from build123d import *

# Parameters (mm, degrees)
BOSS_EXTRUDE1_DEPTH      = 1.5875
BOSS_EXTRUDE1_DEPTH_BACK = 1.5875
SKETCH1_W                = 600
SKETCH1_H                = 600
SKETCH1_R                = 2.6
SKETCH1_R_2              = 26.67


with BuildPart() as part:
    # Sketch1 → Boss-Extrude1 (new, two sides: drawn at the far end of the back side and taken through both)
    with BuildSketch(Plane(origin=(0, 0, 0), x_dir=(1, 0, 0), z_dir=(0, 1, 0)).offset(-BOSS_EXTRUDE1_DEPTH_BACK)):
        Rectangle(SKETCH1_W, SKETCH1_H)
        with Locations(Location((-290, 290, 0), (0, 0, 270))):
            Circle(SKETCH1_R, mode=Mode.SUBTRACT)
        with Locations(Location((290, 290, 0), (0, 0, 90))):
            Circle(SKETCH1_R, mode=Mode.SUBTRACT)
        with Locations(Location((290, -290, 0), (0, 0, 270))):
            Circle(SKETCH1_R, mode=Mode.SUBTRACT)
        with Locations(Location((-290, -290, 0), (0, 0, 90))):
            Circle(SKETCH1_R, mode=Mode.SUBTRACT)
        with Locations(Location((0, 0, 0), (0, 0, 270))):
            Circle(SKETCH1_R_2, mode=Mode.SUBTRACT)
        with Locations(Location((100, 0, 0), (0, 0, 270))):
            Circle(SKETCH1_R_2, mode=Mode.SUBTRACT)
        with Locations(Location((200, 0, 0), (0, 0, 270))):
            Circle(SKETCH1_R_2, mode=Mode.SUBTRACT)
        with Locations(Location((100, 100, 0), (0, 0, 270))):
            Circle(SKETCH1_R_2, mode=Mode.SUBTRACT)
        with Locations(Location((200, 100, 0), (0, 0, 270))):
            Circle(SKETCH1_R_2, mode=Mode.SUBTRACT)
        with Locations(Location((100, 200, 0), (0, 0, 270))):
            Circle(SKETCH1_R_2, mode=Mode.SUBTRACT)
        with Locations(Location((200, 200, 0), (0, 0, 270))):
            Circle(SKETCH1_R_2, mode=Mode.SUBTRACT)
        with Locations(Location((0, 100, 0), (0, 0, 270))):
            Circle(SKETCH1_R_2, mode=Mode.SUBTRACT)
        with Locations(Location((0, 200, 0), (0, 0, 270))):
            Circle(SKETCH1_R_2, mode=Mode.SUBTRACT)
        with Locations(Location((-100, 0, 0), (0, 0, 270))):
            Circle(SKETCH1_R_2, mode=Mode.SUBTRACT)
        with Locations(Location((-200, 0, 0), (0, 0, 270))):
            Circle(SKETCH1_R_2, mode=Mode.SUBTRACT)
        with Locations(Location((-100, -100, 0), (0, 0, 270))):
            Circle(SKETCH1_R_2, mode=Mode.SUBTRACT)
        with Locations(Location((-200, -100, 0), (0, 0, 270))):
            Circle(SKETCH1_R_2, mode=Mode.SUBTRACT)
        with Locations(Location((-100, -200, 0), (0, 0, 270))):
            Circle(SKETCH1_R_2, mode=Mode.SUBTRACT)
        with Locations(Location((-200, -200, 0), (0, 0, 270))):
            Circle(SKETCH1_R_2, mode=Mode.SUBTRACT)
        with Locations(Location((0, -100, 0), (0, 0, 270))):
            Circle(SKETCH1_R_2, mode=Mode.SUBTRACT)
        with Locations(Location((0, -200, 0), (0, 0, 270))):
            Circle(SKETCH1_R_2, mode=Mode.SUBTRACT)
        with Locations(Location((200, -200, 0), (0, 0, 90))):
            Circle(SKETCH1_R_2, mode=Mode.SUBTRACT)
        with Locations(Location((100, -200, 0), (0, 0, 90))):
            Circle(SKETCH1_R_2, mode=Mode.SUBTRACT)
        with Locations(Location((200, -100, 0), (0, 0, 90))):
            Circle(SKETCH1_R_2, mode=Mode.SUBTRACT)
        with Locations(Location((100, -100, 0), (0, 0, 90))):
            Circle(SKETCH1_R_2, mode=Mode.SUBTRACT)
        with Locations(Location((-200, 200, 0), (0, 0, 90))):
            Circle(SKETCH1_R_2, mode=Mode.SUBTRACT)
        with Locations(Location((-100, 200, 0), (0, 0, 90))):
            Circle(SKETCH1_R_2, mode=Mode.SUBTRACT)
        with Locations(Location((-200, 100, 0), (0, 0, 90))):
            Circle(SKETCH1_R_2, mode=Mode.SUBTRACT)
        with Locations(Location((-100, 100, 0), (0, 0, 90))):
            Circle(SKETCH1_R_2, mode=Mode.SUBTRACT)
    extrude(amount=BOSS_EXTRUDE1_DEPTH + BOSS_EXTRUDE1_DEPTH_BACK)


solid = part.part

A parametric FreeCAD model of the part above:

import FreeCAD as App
import Part
import Sketcher

doc = App.newDocument("Part")
body = doc.addObject("PartDesign::Body", "Body")

sketch1 = body.newObject("Sketcher::SketchObject", "Sketch")
sketch1.AttachmentSupport = (doc.getObject("XZ_Plane"), [""])
sketch1.MapMode = "FlatFace"
sketch1.addGeometry([
    Part.LineSegment(App.Vector(-300, -300, 0), App.Vector(-300, 300, 0)),
    Part.LineSegment(App.Vector(-300, 300, 0), App.Vector(300, 300, 0)),
    Part.LineSegment(App.Vector(300, 300, 0), App.Vector(300, -300, 0)),
    Part.LineSegment(App.Vector(300, -300, 0), App.Vector(-300, -300, 0)),
    Part.Circle(App.Vector(-290, 290, 0), App.Vector(0, 0, 1), 2.6),
    Part.Circle(App.Vector(-200, 200, 0), App.Vector(0, 0, 1), 26.7),
    Part.Circle(App.Vector(-100, 200, 0), App.Vector(0, 0, 1), 26.7),
    Part.Circle(App.Vector(-200, 100, 0), App.Vector(0, 0, 1), 26.7),
    Part.Circle(App.Vector(-100, 100, 0), App.Vector(0, 0, 1), 26.7),
    Part.Circle(App.Vector(0, 200, 0), App.Vector(0, 0, 1), 26.7),
    Part.Circle(App.Vector(100, 200, 0), App.Vector(0, 0, 1), 26.7),
    Part.Circle(App.Vector(290, 290, 0), App.Vector(0, 0, 1), 2.6),
    Part.Circle(App.Vector(200, 200, 0), App.Vector(0, 0, 1), 26.7),
    Part.Circle(App.Vector(0, 100, 0), App.Vector(0, 0, 1), 26.7),
    Part.Circle(App.Vector(100, 100, 0), App.Vector(0, 0, 1), 26.7),
    Part.Circle(App.Vector(200, 100, 0), App.Vector(0, 0, 1), 26.7),
    Part.Circle(App.Vector(-200, 0, 0), App.Vector(0, 0, 1), 26.7),
    Part.Circle(App.Vector(-200, -100, 0), App.Vector(0, 0, 1), 26.7),
    Part.Circle(App.Vector(-100, 0, 0), App.Vector(0, 0, 1), 26.7),
    Part.Circle(App.Vector(-100, -100, 0), App.Vector(0, 0, 1), 26.7),
    Part.Circle(App.Vector(-200, -200, 0), App.Vector(0, 0, 1), 26.7),
    Part.Circle(App.Vector(-290, -290, 0), App.Vector(0, 0, 1), 2.6),
    Part.Circle(App.Vector(-100, -200, 0), App.Vector(0, 0, 1), 26.7),
    Part.Circle(App.Vector(0, 0, 0), App.Vector(0, 0, 1), 26.7),
    Part.Circle(App.Vector(100, 0, 0), App.Vector(0, 0, 1), 26.7),
    Part.Circle(App.Vector(0, -100, 0), App.Vector(0, 0, 1), 26.7),
    Part.Circle(App.Vector(100, -100, 0), App.Vector(0, 0, 1), 26.7),
    Part.Circle(App.Vector(200, 0, 0), App.Vector(0, 0, 1), 26.7),
    Part.Circle(App.Vector(200, -100, 0), App.Vector(0, 0, 1), 26.7),
    Part.Circle(App.Vector(0, -200, 0), App.Vector(0, 0, 1), 26.7),
    Part.Circle(App.Vector(100, -200, 0), App.Vector(0, 0, 1), 26.7),
    Part.Circle(App.Vector(200, -200, 0), App.Vector(0, 0, 1), 26.7),
    Part.Circle(App.Vector(290, -290, 0), App.Vector(0, 0, 1), 2.6),
], False)
sketch1.addConstraint([
    Sketcher.Constraint("Coincident", 0, 2, 1, 1),
    Sketcher.Constraint("Coincident", 1, 2, 2, 1),
    Sketcher.Constraint("Coincident", 2, 2, 3, 1),
    Sketcher.Constraint("Coincident", 3, 2, 0, 1),
    Sketcher.Constraint("Vertical", 0),
    Sketcher.Constraint("Horizontal", 1),
    Sketcher.Constraint("Vertical", 2),
    Sketcher.Constraint("Horizontal", 3),
    Sketcher.Constraint("Coincident", 23, 3, -1, 1),
    Sketcher.Constraint("Equal", 5, 6),
    Sketcher.Constraint("Equal", 6, 7),
    Sketcher.Constraint("Equal", 7, 8),
    Sketcher.Constraint("Equal", 8, 9),
    Sketcher.Constraint("Equal", 9, 10),
    Sketcher.Constraint("Equal", 4, 11),
    Sketcher.Constraint("Equal", 10, 12),
    Sketcher.Constraint("Equal", 12, 13),
    Sketcher.Constraint("Equal", 13, 14),
    Sketcher.Constraint("Equal", 14, 15),
    Sketcher.Constraint("Equal", 15, 16),
    Sketcher.Constraint("Equal", 16, 17),
    Sketcher.Constraint("Equal", 17, 18),
    Sketcher.Constraint("Equal", 18, 19),
    Sketcher.Constraint("Equal", 19, 20),
    Sketcher.Constraint("Equal", 11, 21),
    Sketcher.Constraint("Equal", 20, 22),
    Sketcher.Constraint("Equal", 22, 23),
    Sketcher.Constraint("Equal", 23, 24),
    Sketcher.Constraint("Equal", 24, 25),
    Sketcher.Constraint("Equal", 25, 26),
    Sketcher.Constraint("Equal", 26, 27),
    Sketcher.Constraint("Equal", 27, 28),
    Sketcher.Constraint("Equal", 28, 29),
    Sketcher.Constraint("Equal", 29, 30),
    Sketcher.Constraint("Equal", 30, 31),
    Sketcher.Constraint("Equal", 21, 32),
    Sketcher.Constraint("Symmetric", 15, 3, 17, 3, -1, 1),
    Sketcher.Constraint("Symmetric", 14, 3, 19, 3, -1, 1),
    Sketcher.Constraint("Symmetric", 12, 3, 20, 3, -1, 1),
    Sketcher.Constraint("Symmetric", 11, 3, 21, 3, -1, 1),
    Sketcher.Constraint("Symmetric", 10, 3, 22, 3, -1, 1),
    Sketcher.Constraint("Symmetric", 18, 3, 24, 3, -1, 1),
    Sketcher.Constraint("Symmetric", 13, 3, 25, 3, -1, 1),
    Sketcher.Constraint("Symmetric", 8, 3, 26, 3, -1, 1),
    Sketcher.Constraint("Symmetric", 16, 3, 27, 3, -1, 1),
    Sketcher.Constraint("Symmetric", 7, 3, 28, 3, -1, 1),
    Sketcher.Constraint("Symmetric", 9, 3, 29, 3, -1, 1),
    Sketcher.Constraint("Symmetric", 6, 3, 30, 3, -1, 1),
    Sketcher.Constraint("Symmetric", 5, 3, 31, 3, -1, 1),
    Sketcher.Constraint("Symmetric", 4, 3, 32, 3, -1, 1),
    Sketcher.Constraint("Symmetric", 0, 2, 2, 2, -1, 1),
    Sketcher.Constraint("Symmetric", 6, 3, 10, 3, -2),
    Sketcher.Constraint("Symmetric", 4, 3, 11, 3, -2),
    Sketcher.Constraint("Symmetric", 5, 3, 12, 3, -2),
    Sketcher.Constraint("Symmetric", 8, 3, 14, 3, -2),
    Sketcher.Constraint("Symmetric", 7, 3, 15, 3, -2),
    Sketcher.Constraint("PointOnObject", 9, 3, -2),
    Sketcher.Constraint("PointOnObject", 13, 3, -2),
    Sketcher.Constraint("PointOnObject", 16, 3, -1),
    Sketcher.Constraint("PointOnObject", 18, 3, -1),
    Sketcher.Constraint("Horizontal", 5, 3, 6, 3),
    Sketcher.Constraint("Horizontal", 7, 3, 8, 3),
    Sketcher.Constraint("Horizontal", 6, 3, 9, 3),
    Sketcher.Constraint("Horizontal", 8, 3, 13, 3),
    Sketcher.Constraint("Vertical", 5, 3, 7, 3),
    Sketcher.Constraint("Vertical", 6, 3, 8, 3),
    Sketcher.Constraint("Vertical", 7, 3, 16, 3),
    Sketcher.Constraint("Vertical", 8, 3, 18, 3),
    Sketcher.Constraint("Equal", 3, 0),
    Sketcher.Constraint("Diameter", 4, 5.2),
    Sketcher.Constraint("Diameter", 5, 53.34),
    Sketcher.Constraint("DistanceX", 1, 1, 1, 2, 600.0),
    Sketcher.Constraint("DistanceX", 4, 3, -1, 1, 290.0),
    Sketcher.Constraint("DistanceY", -1, 1, 4, 3, 290.0),
    Sketcher.Constraint("DistanceX", 5, 3, -1, 1, 200.0),
    Sketcher.Constraint("DistanceY", -1, 1, 5, 3, 200.0),
    Sketcher.Constraint("DistanceX", 6, 3, -1, 1, 100.0),
    Sketcher.Constraint("DistanceY", -1, 1, 7, 3, 100.0),
])
pad1 = body.newObject("PartDesign::Pad", "Pad")
pad1.Profile = sketch1
pad1.Type = "TwoLengths"
pad1.Length = 1.5875
pad1.Length2 = 1.5875
pad1.Reversed = True

doc.recompute()
